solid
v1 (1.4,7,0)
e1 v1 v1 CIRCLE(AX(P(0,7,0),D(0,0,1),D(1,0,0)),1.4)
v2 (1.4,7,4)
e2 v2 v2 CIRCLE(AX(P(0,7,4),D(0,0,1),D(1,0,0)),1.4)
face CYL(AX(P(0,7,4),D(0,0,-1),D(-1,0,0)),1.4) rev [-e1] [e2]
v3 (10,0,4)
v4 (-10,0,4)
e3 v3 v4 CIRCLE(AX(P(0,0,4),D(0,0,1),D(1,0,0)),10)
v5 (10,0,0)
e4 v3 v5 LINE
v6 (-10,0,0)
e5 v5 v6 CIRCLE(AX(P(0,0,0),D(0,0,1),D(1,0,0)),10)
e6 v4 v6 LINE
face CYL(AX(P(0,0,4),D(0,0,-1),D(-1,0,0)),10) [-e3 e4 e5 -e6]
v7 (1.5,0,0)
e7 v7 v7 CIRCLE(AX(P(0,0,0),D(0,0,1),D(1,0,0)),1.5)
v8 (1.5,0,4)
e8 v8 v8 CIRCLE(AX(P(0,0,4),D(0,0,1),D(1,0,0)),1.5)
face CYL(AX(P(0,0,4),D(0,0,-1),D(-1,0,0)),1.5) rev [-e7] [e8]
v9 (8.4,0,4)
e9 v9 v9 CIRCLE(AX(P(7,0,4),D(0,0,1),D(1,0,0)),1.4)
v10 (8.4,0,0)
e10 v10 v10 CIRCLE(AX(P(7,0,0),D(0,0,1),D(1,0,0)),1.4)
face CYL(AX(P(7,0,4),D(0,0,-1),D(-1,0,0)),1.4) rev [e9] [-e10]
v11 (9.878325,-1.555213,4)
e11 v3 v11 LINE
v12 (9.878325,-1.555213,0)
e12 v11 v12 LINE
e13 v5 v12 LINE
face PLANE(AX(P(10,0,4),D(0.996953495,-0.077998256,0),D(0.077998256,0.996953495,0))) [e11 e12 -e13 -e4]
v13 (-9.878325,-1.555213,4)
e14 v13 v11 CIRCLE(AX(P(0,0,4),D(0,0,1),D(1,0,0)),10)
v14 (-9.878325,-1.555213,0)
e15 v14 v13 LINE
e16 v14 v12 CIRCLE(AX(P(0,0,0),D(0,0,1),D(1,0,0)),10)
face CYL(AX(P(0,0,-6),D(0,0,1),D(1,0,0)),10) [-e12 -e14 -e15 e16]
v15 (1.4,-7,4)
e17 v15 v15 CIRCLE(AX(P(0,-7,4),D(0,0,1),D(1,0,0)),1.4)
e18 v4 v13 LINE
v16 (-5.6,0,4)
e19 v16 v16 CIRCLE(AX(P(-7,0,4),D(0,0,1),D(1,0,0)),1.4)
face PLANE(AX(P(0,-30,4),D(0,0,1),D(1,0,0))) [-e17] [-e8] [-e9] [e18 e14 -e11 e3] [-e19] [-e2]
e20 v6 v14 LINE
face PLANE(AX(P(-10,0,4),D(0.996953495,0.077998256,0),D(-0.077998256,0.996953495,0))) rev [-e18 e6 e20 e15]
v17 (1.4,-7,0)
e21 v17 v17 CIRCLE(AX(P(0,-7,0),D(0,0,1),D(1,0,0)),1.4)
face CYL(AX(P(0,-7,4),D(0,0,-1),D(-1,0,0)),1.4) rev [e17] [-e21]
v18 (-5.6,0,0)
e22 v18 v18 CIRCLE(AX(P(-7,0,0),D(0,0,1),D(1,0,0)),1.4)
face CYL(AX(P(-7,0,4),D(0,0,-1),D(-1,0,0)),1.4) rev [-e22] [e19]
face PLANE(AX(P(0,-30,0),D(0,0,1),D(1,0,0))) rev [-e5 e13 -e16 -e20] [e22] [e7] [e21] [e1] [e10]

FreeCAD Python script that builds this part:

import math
import FreeCAD as App
import Part
import Sketcher
from FreeCAD import Vector

doc = App.newDocument("Part")
params = doc.addObject("Spreadsheet::Sheet", "Params")
for row, (alias, value) in enumerate([
    ("sketch1_diameter", "3 mm"),
    ("sketch1_radius", "10 mm"),
    ("sketch1_diameter2", "2.8 mm"),
    ("pad1_length", "4 mm"),
    ("sketch2_radius", "10 mm"),
    ("sketch2_diameter", "2.8 mm"),
    ("pocket1_length", "10 mm"),
], start=1):
    params.set(f"A{row}", alias)
    params.set(f"B{row}", "=" + value)
    params.setAlias(f"B{row}", alias)

body = doc.addObject("PartDesign::Body", "Body")

sketch1 = body.newObject("Sketcher::SketchObject", "Sketch")
sketch1.AttachmentSupport = (doc.getObject("XY_Plane"), [""])
sketch1.MapMode = "FlatFace"
sketch1.addGeometry([
    Part.LineSegment(Vector(-10, 0, 0), Vector(-7.7, -30, 0)),
    Part.ArcOfCircle(Part.Circle(Vector(0, -30, 0), Vector(0, 0, 1), 7.7), math.radians(180), math.radians(360)),
    Part.LineSegment(Vector(7.7, -30, 0), Vector(10, 0, 0)),
    Part.ArcOfCircle(Part.Circle(Vector(0, 0, 0), Vector(0, 0, 1), 10), math.radians(0), math.radians(180)),
    Part.Circle(Vector(0, -30, 0), Vector(0, 0, 1), 1.4),
    Part.Circle(Vector(-7, 0, 0), Vector(0, 0, 1), 1.4),
    Part.Circle(Vector(0, -7, 0), Vector(0, 0, 1), 1.4),
    Part.Circle(Vector(0, 0, 0), Vector(0, 0, 1), 1.5),
    Part.Circle(Vector(0, 7, 0), Vector(0, 0, 1), 1.4),
    Part.Circle(Vector(7, 0, 0), Vector(0, 0, 1), 1.4),
], False)
sketch1.addConstraint([
    Sketcher.Constraint("Coincident", 0, 2, 1, 1),
    Sketcher.Constraint("Coincident", 1, 2, 2, 1),
    Sketcher.Constraint("Coincident", 2, 2, 3, 1),
    Sketcher.Constraint("Coincident", 3, 2, 0, 1),
    Sketcher.Constraint("Coincident", 3, 3, -1, 1),
    Sketcher.Constraint("Coincident", 7, 3, -1, 1),
    Sketcher.Constraint("Coincident", 4, 3, 1, 3),
    Sketcher.Constraint("Equal", 4, 5),
    Sketcher.Constraint("Equal", 5, 6),
    Sketcher.Constraint("Equal", 6, 8),
    Sketcher.Constraint("Equal", 8, 9),
    Sketcher.Constraint("Symmetric", 6, 3, 8, 3, -1, 1),
    Sketcher.Constraint("Symmetric", 5, 3, 9, 3, -1, 1),
    Sketcher.Constraint("Symmetric", 0, 2, 1, 2, -2),
    Sketcher.Constraint("PointOnObject", 5, 3, -1),
    Sketcher.Constraint("PointOnObject", 6, 3, -2),
    Sketcher.Constraint("PointOnObject", 2, 2, -1),
    Sketcher.Constraint("PointOnObject", 3, 2, -1),
    Sketcher.Constraint("Horizontal", 4, 3, 0, 2),
    Sketcher.Constraint("Diameter", 7, 3.0),
    Sketcher.Constraint("Radius", 3, 10.0),
    Sketcher.Constraint("Diameter", 4, 2.8),
    Sketcher.Constraint("DistanceY", 1, 3, -1, 1, 30.0),
    Sketcher.Constraint("DistanceX", 5, 3, -1, 1, 7.0),
    Sketcher.Constraint("DistanceY", 6, 3, -1, 1, 7.0),
    Sketcher.Constraint("Radius", 1, 7.652902),
])
sketch1.setExpression("Constraints[19]", "Params.sketch1_diameter")
sketch1.setExpression("Constraints[20]", "Params.sketch1_radius")
sketch1.setExpression("Constraints[21]", "Params.sketch1_diameter2")
pad1 = body.newObject("PartDesign::Pad", "Pad")
pad1.Profile = sketch1
pad1.setExpression("Length", "Params.pad1_length")

sketch2 = body.newObject("Sketcher::SketchObject", "Sketch001")
sketch2.AttachmentSupport = (doc.getObject("XY_Plane"), [""])
sketch2.MapMode = "FlatFace"
sketch2.AttachmentOffset = App.Placement(Vector(0, 0, 4), App.Rotation())
sketch2.addGeometry([
    Part.ArcOfCircle(Part.Circle(Vector(0, 0, 0), Vector(0, 0, 1), 10), math.radians(-171), math.radians(-9)),
    Part.LineSegment(Vector(-9.9, -1.6, 0), Vector(-7.7, -30, 0)),
    Part.ArcOfCircle(Part.Circle(Vector(0, -30, 0), Vector(0, 0, 1), 7.7), math.radians(180), math.radians(360)),
    Part.LineSegment(Vector(7.7, -30, 0), Vector(9.9, -1.6, 0)),
    Part.Circle(Vector(0, -30, 0), Vector(0, 0, 1), 1.4),
], False)
sketch2.addConstraint([
    Sketcher.Constraint("Coincident", 0, 1, 1, 1),
    Sketcher.Constraint("Coincident", 1, 2, 2, 1),
    Sketcher.Constraint("Coincident", 2, 2, 3, 1),
    Sketcher.Constraint("Coincident", 3, 2, 0, 2),
    Sketcher.Constraint("Coincident", 0, 3, -1, 1),
    Sketcher.Constraint("Coincident", 4, 3, 2, 3),
    Sketcher.Constraint("Symmetric", 1, 2, 2, 2, -2),
    Sketcher.Constraint("Horizontal", 4, 3, 1, 2),
    Sketcher.Constraint("Horizontal", 0, 1, 3, 2),
    Sketcher.Constraint("Radius", 0, 10.0),
    Sketcher.Constraint("Diameter", 4, 2.8),
    Sketcher.Constraint("DistanceY", 2, 3, -1, 1, 30.0),
    Sketcher.Constraint("Radius", 2, 7.652902),
    Sketcher.Constraint("Distance", 1, 28.531709),
])
sketch2.setExpression("Constraints[9]", "Params.sketch2_radius")
sketch2.setExpression("Constraints[10]", "Params.sketch2_diameter")
pocket1 = body.newObject("PartDesign::Pocket", "Pocket")
pocket1.Profile = sketch2
pocket1.setExpression("Length", "Params.pocket1_length")

doc.recompute()
